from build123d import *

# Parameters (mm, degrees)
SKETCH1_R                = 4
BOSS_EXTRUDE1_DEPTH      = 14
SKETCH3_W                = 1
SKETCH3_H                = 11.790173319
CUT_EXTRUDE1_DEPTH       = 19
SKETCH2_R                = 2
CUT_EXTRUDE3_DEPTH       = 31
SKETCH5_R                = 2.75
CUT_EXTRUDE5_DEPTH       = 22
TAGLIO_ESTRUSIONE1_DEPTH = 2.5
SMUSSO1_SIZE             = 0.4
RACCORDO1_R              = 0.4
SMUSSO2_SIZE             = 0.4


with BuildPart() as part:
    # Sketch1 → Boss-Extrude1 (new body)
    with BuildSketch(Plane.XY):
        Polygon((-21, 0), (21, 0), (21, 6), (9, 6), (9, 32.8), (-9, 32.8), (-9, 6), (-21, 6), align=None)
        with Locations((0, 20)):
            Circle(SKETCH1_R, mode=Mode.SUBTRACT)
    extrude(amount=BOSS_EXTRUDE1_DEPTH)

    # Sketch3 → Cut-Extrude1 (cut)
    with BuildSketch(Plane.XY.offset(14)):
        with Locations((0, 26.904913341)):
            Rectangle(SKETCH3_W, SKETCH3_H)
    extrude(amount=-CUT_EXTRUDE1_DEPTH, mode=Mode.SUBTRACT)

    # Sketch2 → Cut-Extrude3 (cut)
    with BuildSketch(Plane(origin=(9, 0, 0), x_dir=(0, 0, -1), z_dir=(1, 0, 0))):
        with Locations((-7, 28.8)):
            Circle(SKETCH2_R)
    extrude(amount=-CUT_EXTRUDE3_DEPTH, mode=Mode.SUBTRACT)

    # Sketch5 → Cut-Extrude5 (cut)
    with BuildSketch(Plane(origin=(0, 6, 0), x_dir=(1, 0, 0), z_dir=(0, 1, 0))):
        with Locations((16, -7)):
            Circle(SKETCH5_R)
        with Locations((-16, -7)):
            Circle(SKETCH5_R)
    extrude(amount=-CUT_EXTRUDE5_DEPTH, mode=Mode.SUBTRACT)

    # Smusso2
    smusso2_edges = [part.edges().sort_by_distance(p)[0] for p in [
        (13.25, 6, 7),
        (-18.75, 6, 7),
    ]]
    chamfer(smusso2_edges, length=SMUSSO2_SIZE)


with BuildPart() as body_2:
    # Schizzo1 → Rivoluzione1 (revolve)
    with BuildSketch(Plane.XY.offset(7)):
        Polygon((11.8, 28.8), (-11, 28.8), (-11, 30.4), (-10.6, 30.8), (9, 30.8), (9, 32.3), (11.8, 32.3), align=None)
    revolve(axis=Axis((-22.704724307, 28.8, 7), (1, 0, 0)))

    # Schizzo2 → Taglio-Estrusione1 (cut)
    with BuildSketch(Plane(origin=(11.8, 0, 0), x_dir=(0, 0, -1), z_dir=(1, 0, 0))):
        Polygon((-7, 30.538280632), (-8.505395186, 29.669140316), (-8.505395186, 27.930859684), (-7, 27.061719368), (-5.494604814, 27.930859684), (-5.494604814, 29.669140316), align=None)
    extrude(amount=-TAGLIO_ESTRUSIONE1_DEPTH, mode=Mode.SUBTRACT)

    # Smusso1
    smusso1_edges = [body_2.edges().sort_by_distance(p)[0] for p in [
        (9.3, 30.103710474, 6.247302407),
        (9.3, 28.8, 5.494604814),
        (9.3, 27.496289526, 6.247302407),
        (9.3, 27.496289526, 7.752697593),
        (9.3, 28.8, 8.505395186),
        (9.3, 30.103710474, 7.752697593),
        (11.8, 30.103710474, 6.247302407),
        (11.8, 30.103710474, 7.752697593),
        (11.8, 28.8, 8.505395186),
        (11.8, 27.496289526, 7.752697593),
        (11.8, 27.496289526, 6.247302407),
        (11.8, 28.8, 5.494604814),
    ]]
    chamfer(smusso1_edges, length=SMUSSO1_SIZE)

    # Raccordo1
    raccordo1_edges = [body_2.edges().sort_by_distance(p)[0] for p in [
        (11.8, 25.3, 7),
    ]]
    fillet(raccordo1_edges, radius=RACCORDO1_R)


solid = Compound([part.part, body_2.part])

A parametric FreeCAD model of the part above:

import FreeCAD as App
import Part
import Sketcher

V = App.Vector
Q = App.Units.Quantity


def edges_at(feature, points):
    """Names of the edges that pass closest to the given points."""
    edges = feature.Shape.Edges
    near = lambda p: min(range(len(edges)), key=lambda i: edges[i].distToShape(Part.Vertex(*p))[0])
    return sorted({f"Edge{near(p) + 1}" for p in points})


def add_polygon(sketch, points):
    """Adds a closed chain of lines whose ends are joined by coincident constraints."""
    first, n = sketch.GeometryCount, len(points)
    for a, b in zip(points, points[1:] + points[:1]):
        sketch.addGeometry(Part.LineSegment(App.Vector(*a, 0), App.Vector(*b, 0)), False)
    for i in range(n):
        sketch.addConstraint(Sketcher.Constraint("Coincident", first + i, 2, first + (i + 1) % n, 1))

doc = App.newDocument("Part")
body = doc.addObject("PartDesign::Body", "Body")

sketch1 = doc.addObject("Sketcher::SketchObject", "Sketch")
body.addObject(sketch1)
sketch1.AttachmentSupport = (doc.XY_Plane, [""])
sketch1.MapMode = "FlatFace"
add_polygon(sketch1, [(-21, 0), (21, 0), (21, 6), (9, 6), (9, 32.8), (-9, 32.8), (-9, 6), (-21, 6)])
sketch1.addGeometry(Part.Circle(V(0, 20, 0), V(0, 0, 1), 4), False)
sketch1.addConstraint([
    Sketcher.Constraint("Horizontal", 0),
    Sketcher.Constraint("Vertical", 1),
    Sketcher.Constraint("Horizontal", 2),
    Sketcher.Constraint("Vertical", 3),
    Sketcher.Constraint("Horizontal", 4),
    Sketcher.Constraint("Vertical", 5),
    Sketcher.Constraint("Horizontal", 6),
    Sketcher.Constraint("Vertical", 7),
    Sketcher.Constraint("Symmetric", 0, 2, 7, 2, -1, 1),
    Sketcher.Constraint("Symmetric", 2, 2, 5, 2, -2),
    Sketcher.Constraint("PointOnObject", 8, 3, -2),
    Sketcher.Constraint("Diameter", 8, Q("8 mm")),
    Sketcher.Constraint("DistanceX", 0, 1, 0, 2, Q("42 mm")),
    Sketcher.Constraint("DistanceX", 2, 2, 2, 1, Q("12 mm")),
    Sketcher.Constraint("DistanceY", 1, 1, 1, 2, Q("6 mm")),
    Sketcher.Constraint("DistanceY", 3, 1, 3, 2, Q("26.8 mm")),
    Sketcher.Constraint("DistanceY", -1, 1, 8, 3, Q("20 mm")),
])
pad1 = doc.addObject("PartDesign::Pad", "Pad")
body.addObject(pad1)
pad1.Profile = sketch1
pad1.Length = 14

sketch2 = doc.addObject("Sketcher::SketchObject", "Sketch001")
body.addObject(sketch2)
sketch2.AttachmentSupport = (doc.XY_Plane, [""])
sketch2.MapMode = "FlatFace"
sketch2.AttachmentOffset = App.Placement(V(0, 0, 14), App.Rotation())
add_polygon(sketch2, [(-0.5, 32.8), (-0.5, 21), (0.5, 21), (0.5, 32.8)])
sketch2.addConstraint([
    Sketcher.Constraint("Vertical", 0),
    Sketcher.Constraint("Horizontal", 1),
    Sketcher.Constraint("Vertical", 2),
    Sketcher.Constraint("Horizontal", 3),
    Sketcher.Constraint("DistanceX", 1, 1, 1, 2, Q("1 mm")),
    Sketcher.Constraint("DistanceX", 0, 2, -1, 1, Q("0.5 mm")),
    Sketcher.Constraint("DistanceY", -1, 1, 2, 2, Q("32.8 mm")),
    Sketcher.Constraint("DistanceY", 0, 2, 0, 1, Q("11.790173 mm")),
])
pocket1 = doc.addObject("PartDesign::Pocket", "Pocket")
body.addObject(pocket1)
pocket1.Profile = sketch2
pocket1.Length = 19

sketch3 = doc.addObject("Sketcher::SketchObject", "Sketch002")
body.addObject(sketch3)
sketch3.AttachmentSupport = (doc.YZ_Plane, [""])
sketch3.MapMode = "FlatFace"
sketch3.AttachmentOffset = App.Placement(V(0, 0, 9), App.Rotation())
sketch3.addGeometry(Part.Circle(V(28.8, 7, 0), V(0, 0, 1), 2), False)
sketch3.addConstraint([
    Sketcher.Constraint("Diameter", 0, Q("4 mm")),
    Sketcher.Constraint("DistanceY", -1, 1, 0, 3, Q("7 mm")),
    Sketcher.Constraint("DistanceX", -1, 1, 0, 3, Q("28.8 mm")),
])
pocket2 = doc.addObject("PartDesign::Pocket", "Pocket001")
body.addObject(pocket2)
pocket2.Profile = sketch3
pocket2.Length = 31

sketch4 = doc.addObject("Sketcher::SketchObject", "Sketch003")
body.addObject(sketch4)
sketch4.AttachmentSupport = (doc.XZ_Plane, [""])
sketch4.MapMode = "FlatFace"
sketch4.AttachmentOffset = App.Placement(V(0, 0, -6), App.Rotation())
sketch4.addGeometry([
    Part.Circle(V(16, 7, 0), V(0, 0, 1), 2.8),
    Part.Circle(V(-16, 7, 0), V(0, 0, 1), 2.8),
], False)
sketch4.addConstraint([
    Sketcher.Constraint("Equal", 0, 1),
    Sketcher.Constraint("Symmetric", 0, 3, 1, 3, -2),
    Sketcher.Constraint("Diameter", 0, Q("5.5 mm")),
    Sketcher.Constraint("DistanceX", -1, 1, 0, 3, Q("16 mm")),
    Sketcher.Constraint("DistanceY", -1, 1, 0, 3, Q("7 mm")),
])
pocket3 = doc.addObject("PartDesign::Pocket", "Pocket002")
body.addObject(pocket3)
pocket3.Profile = sketch4
pocket3.Length = 22
pocket3.Reversed = True
doc.recompute()

chamfer = doc.addObject("PartDesign::Chamfer", "Chamfer")
body.addObject(chamfer)
chamfer.Base = (pocket3, edges_at(pocket3, [(13.25, 6, 7), (-18.75, 6, 7)]))
chamfer.Size = 0.4
body2 = doc.addObject("PartDesign::Body", "Body001")

sketch5 = doc.addObject("Sketcher::SketchObject", "Sketch004")
body2.addObject(sketch5)
sketch5.AttachmentSupport = (doc.getObject("XY_Plane001"), [""])
sketch5.MapMode = "FlatFace"
sketch5.AttachmentOffset = App.Placement(V(0, 0, 7), App.Rotation())
add_polygon(sketch5, [(-11, 28.8), (11.8, 28.8), (11.8, 32.3), (9, 32.3), (9, 30.8), (-10.6, 30.8), (-11, 30.4)])
sketch5.addGeometry(Part.LineSegment(V(-11, 28.8, 0), V(11.8, 28.8, 0)), True)
sketch5.addConstraint([
    Sketcher.Constraint("Horizontal", 0),
    Sketcher.Constraint("Vertical", 1),
    Sketcher.Constraint("Horizontal", 2),
    Sketcher.Constraint("Vertical", 3),
    Sketcher.Constraint("Horizontal", 4),
    Sketcher.Constraint("Vertical", 6),
    Sketcher.Constraint("Horizontal", 7),
    Sketcher.Constraint("Coincident", 7, 1, 6, 2),
    Sketcher.Constraint("Vertical", 1, 2, 7, 2),
    Sketcher.Constraint("Angle", 5, Q("-135 deg")),
    Sketcher.Constraint("DistanceX", 0, 1, 0, 2, Q("22.8 mm")),
    Sketcher.Constraint("DistanceX", 2, 2, 2, 1, Q("2.8 mm")),
    Sketcher.Constraint("DistanceX", 4, 2, 4, 1, Q("19.6 mm")),
    Sketcher.Constraint("DistanceY", 1, 1, 1, 2, Q("3.5 mm")),
    Sketcher.Constraint("DistanceY", 3, 2, 3, 1, Q("1.5 mm")),
    Sketcher.Constraint("DistanceX", -1, 1, 2, 2, Q("9 mm")),
    Sketcher.Constraint("DistanceY", -1, 1, 0, 2, Q("28.8 mm")),
])
revolution = doc.addObject("PartDesign::Revolution", "Revolution")
body2.addObject(revolution)
revolution.Profile = sketch5
revolution.ReferenceAxis = (sketch5, ["Axis0"])
revolution.Angle = 360

sketch6 = doc.addObject("Sketcher::SketchObject", "Sketch005")
body2.addObject(sketch6)
sketch6.AttachmentSupport = (doc.getObject("YZ_Plane001"), [""])
sketch6.MapMode = "FlatFace"
sketch6.AttachmentOffset = App.Placement(V(0, 0, 11.8), App.Rotation())
add_polygon(sketch6, [(30.5, 7), (29.7, 8.5), (27.9, 8.5), (27.1, 7), (27.9, 5.5), (29.7, 5.5)])
sketch6.addConstraint([
    Sketcher.Constraint("Horizontal", 1),
    Sketcher.Constraint("Horizontal", 4),
    Sketcher.Constraint("Parallel", 0, 3),
    Sketcher.Constraint("Parallel", 2, 5),
    Sketcher.Constraint("Horizontal", 2, 2, 5, 2),
    Sketcher.Constraint("Vertical", 1, 2, 3, 2),
    Sketcher.Constraint("Vertical", 0, 2, 4, 2),
    Sketcher.Constraint("Angle", 0, Q("120 deg")),
    Sketcher.Constraint("DistanceY", -1, 1, 2, 2, Q("7 mm")),
    Sketcher.Constraint("DistanceX", 1, 2, 1, 1, Q("1.738281 mm")),
    Sketcher.Constraint("Distance", 0, Q("1.738281 mm")),
    Sketcher.Constraint("DistanceX", -1, 1, 0, 2, Q("29.66914 mm")),
])
pocket4 = doc.addObject("PartDesign::Pocket", "Pocket003")
body2.addObject(pocket4)
pocket4.Profile = sketch6
pocket4.Length = 2.5
doc.recompute()

chamfer2 = doc.addObject("PartDesign::Chamfer", "Chamfer001")
body2.addObject(chamfer2)
chamfer2.Base = (pocket4, edges_at(pocket4, [
    (9.3, 30.104, 6.247),
    (9.3, 28.8, 5.495),
    (9.3, 27.496, 6.247),
    (9.3, 27.496, 7.753),
    (9.3, 28.8, 8.505),
    (9.3, 30.104, 7.753),
    (11.8, 30.104, 6.247),
    (11.8, 30.104, 7.753),
    (11.8, 28.8, 8.505),
    (11.8, 27.496, 7.753),
    (11.8, 27.496, 6.247),
    (11.8, 28.8, 5.495),
]))
chamfer2.Size = 0.4
doc.recompute()

fillet = doc.addObject("PartDesign::Fillet", "Fillet")
body2.addObject(fillet)
fillet.Base = (chamfer2, edges_at(chamfer2, [(11.8, 25.3, 7)]))
fillet.Radius = 0.4

doc.recompute()
